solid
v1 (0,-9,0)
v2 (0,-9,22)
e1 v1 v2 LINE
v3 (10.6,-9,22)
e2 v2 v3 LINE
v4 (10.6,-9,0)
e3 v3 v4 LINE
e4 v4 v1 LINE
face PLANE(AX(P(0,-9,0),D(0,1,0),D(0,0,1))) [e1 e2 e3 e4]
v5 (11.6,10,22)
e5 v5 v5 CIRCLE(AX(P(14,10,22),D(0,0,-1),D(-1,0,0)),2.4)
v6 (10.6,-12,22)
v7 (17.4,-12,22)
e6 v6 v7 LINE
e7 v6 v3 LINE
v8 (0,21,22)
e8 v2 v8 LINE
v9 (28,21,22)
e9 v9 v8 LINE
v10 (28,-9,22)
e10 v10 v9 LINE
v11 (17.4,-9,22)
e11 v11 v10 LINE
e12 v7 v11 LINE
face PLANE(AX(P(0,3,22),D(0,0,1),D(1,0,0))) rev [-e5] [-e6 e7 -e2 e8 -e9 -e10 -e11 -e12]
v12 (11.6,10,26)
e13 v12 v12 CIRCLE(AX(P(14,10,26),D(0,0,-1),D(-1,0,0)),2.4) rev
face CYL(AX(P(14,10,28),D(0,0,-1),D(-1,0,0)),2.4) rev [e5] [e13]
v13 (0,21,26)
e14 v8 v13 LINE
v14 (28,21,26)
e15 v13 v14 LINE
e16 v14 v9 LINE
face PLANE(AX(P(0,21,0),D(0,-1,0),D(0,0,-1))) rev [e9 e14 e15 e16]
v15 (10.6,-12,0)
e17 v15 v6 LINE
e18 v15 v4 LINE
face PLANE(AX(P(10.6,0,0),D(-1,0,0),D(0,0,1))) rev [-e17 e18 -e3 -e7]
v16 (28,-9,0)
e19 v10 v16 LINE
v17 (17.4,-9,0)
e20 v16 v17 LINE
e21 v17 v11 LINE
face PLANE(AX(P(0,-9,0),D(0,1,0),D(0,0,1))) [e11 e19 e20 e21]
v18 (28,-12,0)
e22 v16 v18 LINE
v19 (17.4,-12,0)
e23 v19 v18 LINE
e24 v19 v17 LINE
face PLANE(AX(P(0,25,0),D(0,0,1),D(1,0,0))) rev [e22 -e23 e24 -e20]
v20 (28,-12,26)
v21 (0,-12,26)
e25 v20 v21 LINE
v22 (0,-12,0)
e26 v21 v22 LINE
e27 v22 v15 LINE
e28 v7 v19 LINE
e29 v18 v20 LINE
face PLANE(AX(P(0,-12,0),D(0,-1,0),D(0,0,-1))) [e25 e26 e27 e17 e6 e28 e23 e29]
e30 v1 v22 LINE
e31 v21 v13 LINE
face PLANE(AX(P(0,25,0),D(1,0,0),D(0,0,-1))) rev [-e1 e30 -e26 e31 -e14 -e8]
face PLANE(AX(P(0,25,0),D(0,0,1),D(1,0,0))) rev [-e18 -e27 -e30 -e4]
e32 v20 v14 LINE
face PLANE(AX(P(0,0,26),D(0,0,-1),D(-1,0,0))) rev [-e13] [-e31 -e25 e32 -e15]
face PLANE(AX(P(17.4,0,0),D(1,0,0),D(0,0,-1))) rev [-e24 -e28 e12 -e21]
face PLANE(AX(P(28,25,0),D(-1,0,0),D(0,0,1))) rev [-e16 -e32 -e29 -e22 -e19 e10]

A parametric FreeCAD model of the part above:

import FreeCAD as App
import Part
import Sketcher
Q = App.Units.Quantity


def add_polygon(sketch, points):
    """Adds a closed chain of lines whose ends are joined by coincident constraints."""
    first, n = sketch.GeometryCount, len(points)
    for a, b in zip(points, points[1:] + points[:1]):
        sketch.addGeometry(Part.LineSegment(App.Vector(*a, 0), App.Vector(*b, 0)), False)
    for i in range(n):
        sketch.addConstraint(Sketcher.Constraint("Coincident", first + i, 2, first + (i + 1) % n, 1))

doc = App.newDocument("Part")
body = doc.addObject("PartDesign::Body", "Body")

sketch1 = body.newObject("Sketcher::SketchObject", "Sketch")
sketch1.AttachmentSupport = (doc.getObject("XZ_Plane"), [""])
sketch1.MapMode = "FlatFace"
add_polygon(sketch1, [(0, 0), (0, 28), (28, 28), (28, 0)])
sketch1.addConstraint(Sketcher.Constraint("Vertical", 0))
sketch1.addConstraint(Sketcher.Constraint("Horizontal", 1))
sketch1.addConstraint(Sketcher.Constraint("Vertical", 2))
sketch1.addConstraint(Sketcher.Constraint("Horizontal", 3))
sketch1.addConstraint(Sketcher.Constraint("Coincident", 3, 2, -1, 1))
sketch1.addConstraint(Sketcher.Constraint("Equal", 3, 0))
sketch1.addConstraint(Sketcher.Constraint("DistanceX", 1, 1, 1, 2, Q("28 mm")))
pad1 = body.newObject("PartDesign::Pad", "Pad")
pad1.Profile = sketch1
pad1.Length = 25
pad1.Reversed = True

sketch2 = body.newObject("Sketcher::SketchObject", "Sketch001")
sketch2.AttachmentSupport = (doc.getObject("XZ_Plane"), [""])
sketch2.MapMode = "FlatFace"
sketch2.AttachmentOffset = App.Placement(App.Vector(0, 0, -25), App.Rotation())
add_polygon(sketch2, [(0, 0), (0, 22), (28, 22), (28, 0)])
sketch2.addConstraint(Sketcher.Constraint("Vertical", 0))
sketch2.addConstraint(Sketcher.Constraint("Horizontal", 1))
sketch2.addConstraint(Sketcher.Constraint("Vertical", 2))
sketch2.addConstraint(Sketcher.Constraint("Horizontal", 3))
sketch2.addConstraint(Sketcher.Constraint("Coincident", 3, 2, -1, 1))
sketch2.addConstraint(Sketcher.Constraint("DistanceX", 1, 1, 1, 2, Q("28 mm")))
sketch2.addConstraint(Sketcher.Constraint("DistanceY", 0, 1, 0, 2, Q("22 mm")))
pocket1 = body.newObject("PartDesign::Pocket", "Pocket")
pocket1.Profile = sketch2
pocket1.Length = 22
pocket1.Reversed = True

sketch3 = body.newObject("Sketcher::SketchObject", "Sketch002")
sketch3.AttachmentSupport = (doc.getObject("XZ_Plane"), [""])
sketch3.MapMode = "FlatFace"
sketch3.AttachmentOffset = App.Placement(App.Vector(0, 0, -3), App.Rotation())
add_polygon(sketch3, [(11, 0), (11, 22), (17, 22), (17, 0)])
sketch3.addConstraint(Sketcher.Constraint("Vertical", 0))
sketch3.addConstraint(Sketcher.Constraint("Horizontal", 1))
sketch3.addConstraint(Sketcher.Constraint("Vertical", 2))
sketch3.addConstraint(Sketcher.Constraint("Horizontal", 3))
sketch3.addConstraint(Sketcher.Constraint("PointOnObject", 2, 2, -1))
sketch3.addConstraint(Sketcher.Constraint("DistanceY", 0, 1, 0, 2, Q("22 mm")))
sketch3.addConstraint(Sketcher.Constraint("DistanceX", 1, 1, 1, 2, Q("6.8 mm")))
sketch3.addConstraint(Sketcher.Constraint("DistanceX", -1, 1, 0, 2, Q("10.6 mm")))
pocket2 = body.newObject("PartDesign::Pocket", "Pocket001")
pocket2.Profile = sketch3
pocket2.Type = "ThroughAll"
pocket2.Reversed = True

sketch4 = body.newObject("Sketcher::SketchObject", "Sketch003")
sketch4.AttachmentSupport = (doc.getObject("XY_Plane"), [""])
sketch4.MapMode = "FlatFace"
sketch4.AttachmentOffset = App.Placement(App.Vector(0, 0, 22), App.Rotation())
sketch4.addGeometry(Part.Circle(App.Vector(14, 10, 0), App.Vector(0, 0, 1), 2.4), False)
sketch4.addConstraint(Sketcher.Constraint("Diameter", 0, Q("4.8 mm")))
sketch4.addConstraint(Sketcher.Constraint("DistanceX", -1, 1, 0, 3, Q("14 mm")))
sketch4.addConstraint(Sketcher.Constraint("DistanceY", -1, 1, 0, 3, Q("10 mm")))
pocket3 = body.newObject("PartDesign::Pocket", "Pocket002")
pocket3.Profile = sketch4
pocket3.Type = "ThroughAll"
pocket3.Reversed = True

sketch5 = body.newObject("Sketcher::SketchObject", "Sketch004")
sketch5.AttachmentSupport = (doc.getObject("XZ_Plane"), [""])
sketch5.MapMode = "FlatFace"
sketch5.AttachmentOffset = App.Placement(App.Vector(0, 0, -25), App.Rotation())
add_polygon(sketch5, [(0, 22), (0, 28), (28, 28), (28, 22)])
sketch5.addConstraint(Sketcher.Constraint("Vertical", 0))
sketch5.addConstraint(Sketcher.Constraint("Horizontal", 1))
sketch5.addConstraint(Sketcher.Constraint("Vertical", 2))
sketch5.addConstraint(Sketcher.Constraint("Horizontal", 3))
sketch5.addConstraint(Sketcher.Constraint("PointOnObject", 0, 2, -2))
sketch5.addConstraint(Sketcher.Constraint("DistanceX", 1, 1, 1, 2, Q("28 mm")))
sketch5.addConstraint(Sketcher.Constraint("DistanceY", 0, 1, 0, 2, Q("6 mm")))
sketch5.addConstraint(Sketcher.Constraint("DistanceY", -1, 1, 0, 2, Q("28 mm")))
pocket4 = body.newObject("PartDesign::Pocket", "Pocket003")
pocket4.Profile = sketch5
pocket4.Length = 4
pocket4.Reversed = True

sketch6 = body.newObject("Sketcher::SketchObject", "Sketch005")
sketch6.AttachmentSupport = (doc.getObject("YZ_Plane"), [""])
sketch6.MapMode = "FlatFace"
sketch6.AttachmentOffset = App.Placement(App.Vector(0, 0, 28), App.Rotation())
add_polygon(sketch6, [(21, 28), (0, 28), (0, 26), (21, 26)])
sketch6.addConstraint(Sketcher.Constraint("Horizontal", 0))
sketch6.addConstraint(Sketcher.Constraint("Vertical", 1))
sketch6.addConstraint(Sketcher.Constraint("Horizontal", 2))
sketch6.addConstraint(Sketcher.Constraint("Vertical", 3))
sketch6.addConstraint(Sketcher.Constraint("PointOnObject", 0, 2, -2))
sketch6.addConstraint(Sketcher.Constraint("DistanceX", 0, 2, 0, 1, Q("21 mm")))
sketch6.addConstraint(Sketcher.Constraint("DistanceY", 1, 2, 1, 1, Q("2 mm")))
sketch6.addConstraint(Sketcher.Constraint("DistanceY", -1, 1, 0, 2, Q("28 mm")))
pocket5 = body.newObject("PartDesign::Pocket", "Pocket004")
pocket5.Profile = sketch6
pocket5.Type = "ThroughAll"

sketch7 = body.newObject("Sketcher::SketchObject", "Sketch006")
sketch7.AttachmentSupport = (doc.getObject("XZ_Plane"), [""])
sketch7.MapMode = "FlatFace"
add_polygon(sketch7, [(0, 26), (0, 0), (28, 0), (28, 26)])
sketch7.addConstraint(Sketcher.Constraint("Vertical", 0))
sketch7.addConstraint(Sketcher.Constraint("Horizontal", 1))
sketch7.addConstraint(Sketcher.Constraint("Vertical", 2))
sketch7.addConstraint(Sketcher.Constraint("Horizontal", 3))
sketch7.addConstraint(Sketcher.Constraint("Coincident", 0, 2, -1, 1))
sketch7.addConstraint(Sketcher.Constraint("DistanceX", 1, 1, 1, 2, Q("28 mm")))
sketch7.addConstraint(Sketcher.Constraint("DistanceY", 0, 2, 0, 1, Q("26 mm")))
pad2 = body.newObject("PartDesign::Pad", "Pad001")
pad2.Profile = sketch7
pad2.Length = 12

sketch8 = body.newObject("Sketcher::SketchObject", "Sketch007")
sketch8.AttachmentSupport = (doc.getObject("XZ_Plane"), [""])
sketch8.MapMode = "FlatFace"
add_polygon(sketch8, [(11, 0), (11, 22), (17, 22), (17, 0)])
sketch8.addConstraint(Sketcher.Constraint("Vertical", 0))
sketch8.addConstraint(Sketcher.Constraint("Horizontal", 1))
sketch8.addConstraint(Sketcher.Constraint("Vertical", 2))
sketch8.addConstraint(Sketcher.Constraint("Horizontal", 3))
sketch8.addConstraint(Sketcher.Constraint("PointOnObject", 2, 2, -1))
sketch8.addConstraint(Sketcher.Constraint("DistanceY", 0, 1, 0, 2, Q("22 mm")))
sketch8.addConstraint(Sketcher.Constraint("DistanceX", 1, 1, 1, 2, Q("6.8 mm")))
sketch8.addConstraint(Sketcher.Constraint("DistanceX", -1, 1, 0, 2, Q("10.6 mm")))
pocket6 = body.newObject("PartDesign::Pocket", "Pocket005")
pocket6.Profile = sketch8
pocket6.Length = 12
pocket6.Reversed = True

sketch9 = body.newObject("Sketcher::SketchObject", "Sketch008")
sketch9.AttachmentSupport = (doc.getObject("XZ_Plane"), [""])
sketch9.MapMode = "FlatFace"
sketch9.AttachmentOffset = App.Placement(App.Vector(0, 0, -3), App.Rotation())
add_polygon(sketch9, [(0, 0), (0, 22), (28, 22), (28, 0)])
sketch9.addConstraint(Sketcher.Constraint("Vertical", 0))
sketch9.addConstraint(Sketcher.Constraint("Horizontal", 1))
sketch9.addConstraint(Sketcher.Constraint("Vertical", 2))
sketch9.addConstraint(Sketcher.Constraint("Horizontal", 3))
sketch9.addConstraint(Sketcher.Constraint("Coincident", 3, 2, -1, 1))
sketch9.addConstraint(Sketcher.Constraint("DistanceX", 1, 1, 1, 2, Q("28 mm")))
sketch9.addConstraint(Sketcher.Constraint("DistanceY", 0, 1, 0, 2, Q("22 mm")))
pocket7 = body.newObject("PartDesign::Pocket", "Pocket006")
pocket7.Profile = sketch9
pocket7.Length = 12
pocket7.Reversed = True

doc.recompute()
